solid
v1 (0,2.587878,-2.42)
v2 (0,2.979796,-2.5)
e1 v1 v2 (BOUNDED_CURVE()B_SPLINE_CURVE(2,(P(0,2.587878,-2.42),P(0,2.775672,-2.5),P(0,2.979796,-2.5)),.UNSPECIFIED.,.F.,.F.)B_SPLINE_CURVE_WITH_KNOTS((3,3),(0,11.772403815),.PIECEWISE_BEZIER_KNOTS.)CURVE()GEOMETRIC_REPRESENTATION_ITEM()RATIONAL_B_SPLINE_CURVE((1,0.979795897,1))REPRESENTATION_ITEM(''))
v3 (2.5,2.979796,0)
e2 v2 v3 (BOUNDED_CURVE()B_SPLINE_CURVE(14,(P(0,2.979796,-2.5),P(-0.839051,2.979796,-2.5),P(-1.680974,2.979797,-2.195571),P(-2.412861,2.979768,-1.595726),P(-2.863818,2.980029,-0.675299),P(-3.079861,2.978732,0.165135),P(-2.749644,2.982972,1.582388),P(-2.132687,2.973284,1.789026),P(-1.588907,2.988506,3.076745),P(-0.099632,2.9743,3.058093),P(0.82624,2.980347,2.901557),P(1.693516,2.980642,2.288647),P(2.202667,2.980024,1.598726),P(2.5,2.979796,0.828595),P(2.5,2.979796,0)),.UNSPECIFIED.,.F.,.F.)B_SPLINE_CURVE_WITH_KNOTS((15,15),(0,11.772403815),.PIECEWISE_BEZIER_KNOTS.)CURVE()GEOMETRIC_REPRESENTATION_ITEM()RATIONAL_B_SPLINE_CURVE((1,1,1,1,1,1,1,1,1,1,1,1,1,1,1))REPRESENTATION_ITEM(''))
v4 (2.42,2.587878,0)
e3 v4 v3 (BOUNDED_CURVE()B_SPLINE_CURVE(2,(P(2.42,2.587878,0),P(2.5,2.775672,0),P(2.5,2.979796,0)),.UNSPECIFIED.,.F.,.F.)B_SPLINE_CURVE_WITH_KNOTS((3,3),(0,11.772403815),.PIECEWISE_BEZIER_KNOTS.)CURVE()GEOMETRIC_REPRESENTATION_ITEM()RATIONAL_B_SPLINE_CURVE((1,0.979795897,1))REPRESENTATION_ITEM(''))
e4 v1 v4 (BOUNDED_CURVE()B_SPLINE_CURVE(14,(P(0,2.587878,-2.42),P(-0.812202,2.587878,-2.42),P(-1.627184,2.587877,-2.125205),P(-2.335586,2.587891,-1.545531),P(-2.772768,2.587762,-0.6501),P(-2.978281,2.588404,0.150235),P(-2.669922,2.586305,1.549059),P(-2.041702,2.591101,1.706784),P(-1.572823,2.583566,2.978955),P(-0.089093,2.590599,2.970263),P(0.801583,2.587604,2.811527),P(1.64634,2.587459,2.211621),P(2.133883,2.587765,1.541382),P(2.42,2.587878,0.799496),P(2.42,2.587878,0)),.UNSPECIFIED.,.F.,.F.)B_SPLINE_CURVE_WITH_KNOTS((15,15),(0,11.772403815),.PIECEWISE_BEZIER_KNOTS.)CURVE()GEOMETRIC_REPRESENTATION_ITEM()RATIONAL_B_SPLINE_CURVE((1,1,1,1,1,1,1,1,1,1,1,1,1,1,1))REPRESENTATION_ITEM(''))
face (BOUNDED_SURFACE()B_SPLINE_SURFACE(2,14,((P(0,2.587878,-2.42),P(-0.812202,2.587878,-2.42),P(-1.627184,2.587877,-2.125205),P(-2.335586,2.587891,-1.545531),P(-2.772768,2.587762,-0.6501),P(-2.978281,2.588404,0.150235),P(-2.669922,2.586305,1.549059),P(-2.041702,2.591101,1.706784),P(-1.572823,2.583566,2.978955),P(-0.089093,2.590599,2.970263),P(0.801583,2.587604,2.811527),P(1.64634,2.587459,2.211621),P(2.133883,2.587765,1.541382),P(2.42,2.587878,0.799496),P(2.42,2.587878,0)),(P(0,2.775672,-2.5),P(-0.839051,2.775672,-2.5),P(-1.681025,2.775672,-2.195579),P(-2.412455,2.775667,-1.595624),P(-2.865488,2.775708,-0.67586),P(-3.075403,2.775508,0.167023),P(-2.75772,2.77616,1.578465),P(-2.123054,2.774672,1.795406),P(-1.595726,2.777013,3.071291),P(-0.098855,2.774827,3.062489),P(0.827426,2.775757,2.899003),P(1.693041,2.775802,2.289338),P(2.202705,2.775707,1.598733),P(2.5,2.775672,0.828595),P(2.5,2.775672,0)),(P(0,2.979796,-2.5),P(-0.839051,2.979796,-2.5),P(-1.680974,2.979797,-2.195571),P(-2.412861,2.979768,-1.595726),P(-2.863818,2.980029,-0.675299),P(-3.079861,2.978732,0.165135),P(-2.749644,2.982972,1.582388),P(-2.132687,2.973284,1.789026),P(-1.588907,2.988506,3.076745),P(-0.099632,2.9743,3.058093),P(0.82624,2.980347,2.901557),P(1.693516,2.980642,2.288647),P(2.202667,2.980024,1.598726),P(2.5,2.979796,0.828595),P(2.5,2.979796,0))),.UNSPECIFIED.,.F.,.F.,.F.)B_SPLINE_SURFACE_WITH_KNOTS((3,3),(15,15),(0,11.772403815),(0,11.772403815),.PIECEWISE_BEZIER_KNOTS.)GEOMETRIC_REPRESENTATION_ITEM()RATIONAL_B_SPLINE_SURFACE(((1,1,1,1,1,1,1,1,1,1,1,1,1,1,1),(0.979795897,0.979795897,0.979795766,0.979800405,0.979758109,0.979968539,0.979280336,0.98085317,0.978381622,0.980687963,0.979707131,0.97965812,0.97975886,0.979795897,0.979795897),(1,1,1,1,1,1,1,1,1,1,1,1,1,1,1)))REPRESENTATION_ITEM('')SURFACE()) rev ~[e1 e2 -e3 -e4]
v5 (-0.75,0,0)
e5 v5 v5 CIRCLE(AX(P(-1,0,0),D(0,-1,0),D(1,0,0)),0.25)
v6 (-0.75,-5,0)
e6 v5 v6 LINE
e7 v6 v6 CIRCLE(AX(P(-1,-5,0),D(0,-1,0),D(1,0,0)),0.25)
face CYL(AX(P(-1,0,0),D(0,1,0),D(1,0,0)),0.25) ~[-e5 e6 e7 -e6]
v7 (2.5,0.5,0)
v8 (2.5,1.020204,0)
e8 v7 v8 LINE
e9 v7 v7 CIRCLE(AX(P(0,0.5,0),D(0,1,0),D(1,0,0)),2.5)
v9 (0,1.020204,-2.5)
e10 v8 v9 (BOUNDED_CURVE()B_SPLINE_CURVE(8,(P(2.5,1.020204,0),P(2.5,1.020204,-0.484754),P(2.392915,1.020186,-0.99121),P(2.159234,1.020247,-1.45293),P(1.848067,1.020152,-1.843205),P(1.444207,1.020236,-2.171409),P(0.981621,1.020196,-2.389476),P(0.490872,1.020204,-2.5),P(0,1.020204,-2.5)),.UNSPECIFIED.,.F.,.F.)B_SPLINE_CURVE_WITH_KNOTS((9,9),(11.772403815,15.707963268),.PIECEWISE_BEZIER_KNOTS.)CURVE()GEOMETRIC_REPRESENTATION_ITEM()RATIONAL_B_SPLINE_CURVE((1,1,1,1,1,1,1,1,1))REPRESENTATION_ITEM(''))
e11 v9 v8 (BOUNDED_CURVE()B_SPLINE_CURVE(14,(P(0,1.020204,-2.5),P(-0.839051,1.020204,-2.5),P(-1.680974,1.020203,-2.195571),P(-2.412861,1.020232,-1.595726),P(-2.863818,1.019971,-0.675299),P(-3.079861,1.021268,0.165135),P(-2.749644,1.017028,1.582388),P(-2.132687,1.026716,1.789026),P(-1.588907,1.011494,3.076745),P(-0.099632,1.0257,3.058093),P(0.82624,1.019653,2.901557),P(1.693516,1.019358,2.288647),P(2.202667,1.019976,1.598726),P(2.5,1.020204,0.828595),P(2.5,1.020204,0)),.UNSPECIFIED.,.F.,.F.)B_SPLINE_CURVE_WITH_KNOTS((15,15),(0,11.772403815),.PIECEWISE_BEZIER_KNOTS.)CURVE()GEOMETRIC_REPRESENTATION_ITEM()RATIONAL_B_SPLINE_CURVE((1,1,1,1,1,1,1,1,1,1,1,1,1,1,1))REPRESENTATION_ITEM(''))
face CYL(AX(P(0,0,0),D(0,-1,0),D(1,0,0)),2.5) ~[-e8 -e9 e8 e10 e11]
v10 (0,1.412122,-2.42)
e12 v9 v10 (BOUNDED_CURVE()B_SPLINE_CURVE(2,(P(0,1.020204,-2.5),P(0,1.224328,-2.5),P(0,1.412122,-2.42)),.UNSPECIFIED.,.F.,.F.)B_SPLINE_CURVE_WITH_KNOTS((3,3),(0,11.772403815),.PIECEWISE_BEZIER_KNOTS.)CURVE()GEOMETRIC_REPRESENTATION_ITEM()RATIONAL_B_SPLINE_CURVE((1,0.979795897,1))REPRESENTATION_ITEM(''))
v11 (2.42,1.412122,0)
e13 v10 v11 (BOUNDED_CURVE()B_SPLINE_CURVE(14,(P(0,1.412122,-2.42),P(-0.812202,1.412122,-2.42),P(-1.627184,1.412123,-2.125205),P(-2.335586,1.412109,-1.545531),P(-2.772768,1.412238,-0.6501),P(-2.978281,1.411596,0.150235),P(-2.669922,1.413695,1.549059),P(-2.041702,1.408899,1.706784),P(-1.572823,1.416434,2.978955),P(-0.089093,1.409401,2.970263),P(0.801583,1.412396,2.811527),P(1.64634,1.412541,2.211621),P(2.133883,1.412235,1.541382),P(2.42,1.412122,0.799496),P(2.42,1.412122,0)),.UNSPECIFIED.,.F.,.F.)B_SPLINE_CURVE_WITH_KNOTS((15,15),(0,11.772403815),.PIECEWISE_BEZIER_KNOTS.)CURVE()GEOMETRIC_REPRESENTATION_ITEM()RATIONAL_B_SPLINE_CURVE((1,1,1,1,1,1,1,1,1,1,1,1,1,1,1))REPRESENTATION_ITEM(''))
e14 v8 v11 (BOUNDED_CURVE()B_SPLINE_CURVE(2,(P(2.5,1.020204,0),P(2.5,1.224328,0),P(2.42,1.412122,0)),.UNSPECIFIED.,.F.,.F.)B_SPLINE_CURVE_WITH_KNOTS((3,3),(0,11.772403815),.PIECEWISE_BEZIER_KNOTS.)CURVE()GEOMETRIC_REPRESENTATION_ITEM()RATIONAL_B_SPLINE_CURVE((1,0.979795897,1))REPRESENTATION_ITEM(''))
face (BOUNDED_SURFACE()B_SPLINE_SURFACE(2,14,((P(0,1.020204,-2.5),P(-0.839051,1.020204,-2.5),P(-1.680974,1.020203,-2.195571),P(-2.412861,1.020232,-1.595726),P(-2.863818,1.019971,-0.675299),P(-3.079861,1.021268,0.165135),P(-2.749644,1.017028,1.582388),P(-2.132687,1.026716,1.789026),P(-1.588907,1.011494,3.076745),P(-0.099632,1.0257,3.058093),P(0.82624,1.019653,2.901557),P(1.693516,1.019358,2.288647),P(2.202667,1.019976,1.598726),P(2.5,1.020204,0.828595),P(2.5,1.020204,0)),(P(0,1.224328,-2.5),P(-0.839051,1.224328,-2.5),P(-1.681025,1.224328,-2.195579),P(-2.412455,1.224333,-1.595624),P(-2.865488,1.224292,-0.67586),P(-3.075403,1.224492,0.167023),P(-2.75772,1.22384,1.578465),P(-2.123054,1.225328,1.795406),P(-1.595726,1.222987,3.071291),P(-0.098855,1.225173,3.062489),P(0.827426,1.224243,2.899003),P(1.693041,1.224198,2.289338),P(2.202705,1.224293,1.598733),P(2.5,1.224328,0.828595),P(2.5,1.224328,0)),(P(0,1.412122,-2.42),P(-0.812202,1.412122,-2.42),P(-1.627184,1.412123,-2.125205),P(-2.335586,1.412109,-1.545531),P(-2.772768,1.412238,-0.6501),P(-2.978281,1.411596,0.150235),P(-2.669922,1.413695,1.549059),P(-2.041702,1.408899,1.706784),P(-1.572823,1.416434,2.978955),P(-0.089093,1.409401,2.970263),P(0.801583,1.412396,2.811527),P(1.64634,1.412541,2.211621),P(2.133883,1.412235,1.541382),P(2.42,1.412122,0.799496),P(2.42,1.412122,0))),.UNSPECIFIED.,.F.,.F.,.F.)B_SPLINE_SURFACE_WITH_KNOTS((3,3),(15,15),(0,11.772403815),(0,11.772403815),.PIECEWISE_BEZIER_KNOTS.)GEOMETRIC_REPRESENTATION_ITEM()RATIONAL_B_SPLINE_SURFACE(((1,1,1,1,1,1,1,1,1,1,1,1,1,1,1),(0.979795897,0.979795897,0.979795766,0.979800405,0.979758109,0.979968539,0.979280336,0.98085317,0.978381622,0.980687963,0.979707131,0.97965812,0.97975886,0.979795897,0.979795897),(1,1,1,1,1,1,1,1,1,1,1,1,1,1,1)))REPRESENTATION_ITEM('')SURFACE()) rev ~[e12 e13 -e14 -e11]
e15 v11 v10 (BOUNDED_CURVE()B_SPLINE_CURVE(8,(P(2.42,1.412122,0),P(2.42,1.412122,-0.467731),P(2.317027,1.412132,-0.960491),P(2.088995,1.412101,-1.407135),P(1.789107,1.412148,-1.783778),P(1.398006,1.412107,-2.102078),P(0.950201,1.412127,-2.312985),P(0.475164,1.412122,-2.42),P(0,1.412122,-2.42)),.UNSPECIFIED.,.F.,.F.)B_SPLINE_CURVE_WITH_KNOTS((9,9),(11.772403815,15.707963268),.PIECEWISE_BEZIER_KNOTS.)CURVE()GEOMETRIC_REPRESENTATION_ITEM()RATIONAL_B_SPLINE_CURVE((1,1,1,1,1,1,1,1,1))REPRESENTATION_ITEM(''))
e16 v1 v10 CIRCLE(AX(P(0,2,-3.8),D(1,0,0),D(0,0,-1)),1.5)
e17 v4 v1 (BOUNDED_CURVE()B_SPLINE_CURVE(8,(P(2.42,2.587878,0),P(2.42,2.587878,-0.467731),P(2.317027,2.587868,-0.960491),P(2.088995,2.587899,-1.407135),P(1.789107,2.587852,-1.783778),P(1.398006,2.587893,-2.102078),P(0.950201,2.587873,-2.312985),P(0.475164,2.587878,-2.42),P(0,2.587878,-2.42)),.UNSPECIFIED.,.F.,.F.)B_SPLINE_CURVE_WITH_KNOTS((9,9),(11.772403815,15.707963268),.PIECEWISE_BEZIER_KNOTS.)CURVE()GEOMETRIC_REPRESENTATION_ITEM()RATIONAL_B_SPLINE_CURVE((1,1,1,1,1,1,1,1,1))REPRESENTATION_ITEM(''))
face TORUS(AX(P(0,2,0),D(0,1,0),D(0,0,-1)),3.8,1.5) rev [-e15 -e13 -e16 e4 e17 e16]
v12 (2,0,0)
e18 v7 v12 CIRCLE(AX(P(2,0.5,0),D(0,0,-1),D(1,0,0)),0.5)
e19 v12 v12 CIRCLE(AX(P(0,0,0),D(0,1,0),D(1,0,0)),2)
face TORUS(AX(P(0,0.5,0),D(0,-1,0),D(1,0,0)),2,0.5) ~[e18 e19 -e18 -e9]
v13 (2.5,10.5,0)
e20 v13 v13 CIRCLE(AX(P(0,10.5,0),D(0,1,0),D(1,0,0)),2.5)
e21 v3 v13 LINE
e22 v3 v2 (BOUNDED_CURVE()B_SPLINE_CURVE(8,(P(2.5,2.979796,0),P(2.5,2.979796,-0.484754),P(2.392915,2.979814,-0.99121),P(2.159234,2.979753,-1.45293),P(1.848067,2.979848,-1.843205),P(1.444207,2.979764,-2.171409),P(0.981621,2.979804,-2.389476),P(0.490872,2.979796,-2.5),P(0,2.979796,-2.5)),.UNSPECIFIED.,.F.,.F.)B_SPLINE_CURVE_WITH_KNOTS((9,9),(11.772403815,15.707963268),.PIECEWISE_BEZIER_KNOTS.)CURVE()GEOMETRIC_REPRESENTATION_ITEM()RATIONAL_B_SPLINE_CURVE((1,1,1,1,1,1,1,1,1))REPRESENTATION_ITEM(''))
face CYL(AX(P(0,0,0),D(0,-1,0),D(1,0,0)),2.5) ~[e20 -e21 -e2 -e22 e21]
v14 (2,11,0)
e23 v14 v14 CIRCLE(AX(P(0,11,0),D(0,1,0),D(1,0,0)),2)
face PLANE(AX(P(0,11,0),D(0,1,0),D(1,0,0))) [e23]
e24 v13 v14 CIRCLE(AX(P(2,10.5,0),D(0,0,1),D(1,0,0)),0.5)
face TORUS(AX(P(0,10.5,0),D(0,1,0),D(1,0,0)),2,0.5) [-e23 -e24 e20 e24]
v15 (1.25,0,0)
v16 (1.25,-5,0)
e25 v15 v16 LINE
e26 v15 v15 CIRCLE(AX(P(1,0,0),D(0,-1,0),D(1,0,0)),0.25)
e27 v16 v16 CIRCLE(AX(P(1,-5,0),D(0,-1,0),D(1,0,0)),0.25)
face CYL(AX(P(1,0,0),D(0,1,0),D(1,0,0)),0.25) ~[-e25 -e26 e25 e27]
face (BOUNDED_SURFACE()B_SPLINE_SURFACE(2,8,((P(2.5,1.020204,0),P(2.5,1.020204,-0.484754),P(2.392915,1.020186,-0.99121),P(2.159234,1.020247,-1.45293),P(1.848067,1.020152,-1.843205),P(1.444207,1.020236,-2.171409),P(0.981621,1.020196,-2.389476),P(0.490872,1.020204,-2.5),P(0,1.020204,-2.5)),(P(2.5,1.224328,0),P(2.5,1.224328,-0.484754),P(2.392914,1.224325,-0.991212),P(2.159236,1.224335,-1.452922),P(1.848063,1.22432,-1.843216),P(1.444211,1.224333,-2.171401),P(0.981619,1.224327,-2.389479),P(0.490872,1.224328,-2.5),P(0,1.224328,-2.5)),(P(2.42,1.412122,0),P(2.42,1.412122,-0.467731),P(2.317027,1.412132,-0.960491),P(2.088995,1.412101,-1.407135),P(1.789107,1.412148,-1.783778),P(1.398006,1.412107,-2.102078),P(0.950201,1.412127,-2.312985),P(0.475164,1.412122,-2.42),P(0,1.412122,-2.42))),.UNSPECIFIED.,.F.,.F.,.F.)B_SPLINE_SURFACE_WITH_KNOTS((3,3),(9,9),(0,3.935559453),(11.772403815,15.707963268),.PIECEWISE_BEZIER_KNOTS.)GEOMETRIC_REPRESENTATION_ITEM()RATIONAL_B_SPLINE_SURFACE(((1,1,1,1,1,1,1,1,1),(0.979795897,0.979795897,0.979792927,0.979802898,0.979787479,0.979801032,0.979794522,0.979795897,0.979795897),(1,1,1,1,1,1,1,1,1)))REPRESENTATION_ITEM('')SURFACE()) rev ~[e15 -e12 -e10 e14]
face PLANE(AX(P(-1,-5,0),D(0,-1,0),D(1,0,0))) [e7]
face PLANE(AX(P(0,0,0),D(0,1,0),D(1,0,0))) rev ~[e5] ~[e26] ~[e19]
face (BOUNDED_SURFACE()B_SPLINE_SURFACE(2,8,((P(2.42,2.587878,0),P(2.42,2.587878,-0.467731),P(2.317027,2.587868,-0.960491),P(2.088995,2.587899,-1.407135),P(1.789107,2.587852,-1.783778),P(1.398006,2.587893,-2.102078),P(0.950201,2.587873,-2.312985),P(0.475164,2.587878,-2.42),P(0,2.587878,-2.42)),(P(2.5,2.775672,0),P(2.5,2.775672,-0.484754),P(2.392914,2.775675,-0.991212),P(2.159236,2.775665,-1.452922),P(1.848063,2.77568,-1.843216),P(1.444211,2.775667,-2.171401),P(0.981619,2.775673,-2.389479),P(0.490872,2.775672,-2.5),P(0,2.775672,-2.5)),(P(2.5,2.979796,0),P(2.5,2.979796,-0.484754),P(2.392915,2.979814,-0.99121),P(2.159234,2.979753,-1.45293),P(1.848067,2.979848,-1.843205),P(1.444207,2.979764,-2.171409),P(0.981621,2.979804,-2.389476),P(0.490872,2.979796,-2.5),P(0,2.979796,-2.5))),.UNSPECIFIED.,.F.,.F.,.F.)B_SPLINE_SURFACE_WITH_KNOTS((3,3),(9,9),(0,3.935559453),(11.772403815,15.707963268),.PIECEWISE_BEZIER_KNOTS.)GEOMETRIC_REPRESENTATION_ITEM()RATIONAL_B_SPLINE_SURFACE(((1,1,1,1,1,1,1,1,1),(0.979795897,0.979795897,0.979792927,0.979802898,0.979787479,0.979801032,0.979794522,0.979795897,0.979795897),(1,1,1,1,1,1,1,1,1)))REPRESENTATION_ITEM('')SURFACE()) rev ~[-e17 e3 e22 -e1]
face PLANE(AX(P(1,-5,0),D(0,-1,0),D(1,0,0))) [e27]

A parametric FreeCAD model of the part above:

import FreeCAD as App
import Part
import Sketcher
from FreeCAD import Vector
Q = App.Units.Quantity


def edges_at(feature, points):
    """Names of the edges that pass closest to the given points."""
    edges = feature.Shape.Edges
    near = lambda p: min(range(len(edges)), key=lambda i: edges[i].distToShape(Part.Vertex(*p))[0])
    return sorted({f"Edge{near(p) + 1}" for p in points})

doc = App.newDocument("Part")
params = doc.addObject("Spreadsheet::Sheet", "Params")
for row, (alias, value) in enumerate([
    ("sketch1_diameter", "5 mm"),
    ("pad1_length", "11 mm"),
    ("sketch2_diameter", "0.5 mm"),
    ("pad2_length", "5 mm"),
    ("sketch3_diameter", "3 mm"),
    ("groove_angle", "360 deg"),
    ("fillet_radius", "1 mm"),
    ("fillet2_radius", "0.5 mm"),
    ("fillet3_radius", "0.5 mm"),
], start=1):
    params.set(f"A{row}", alias)
    params.set(f"B{row}", "=" + value)
    params.setAlias(f"B{row}", alias)

body = doc.addObject("PartDesign::Body", "Body")

sketch1 = body.newObject("Sketcher::SketchObject", "Sketch")
sketch1.AttachmentSupport = (doc.getObject("XZ_Plane"), [""])
sketch1.MapMode = "FlatFace"
sketch1.addGeometry(Part.Circle(Vector(0, 0, 0), Vector(0, 0, 1), 2.5), False)
sketch1.addConstraint([
    Sketcher.Constraint("Coincident", 0, 3, -1, 1),
    Sketcher.Constraint("Diameter", 0, Q("5 mm")),
])
sketch1.setExpression("Constraints[1]", "Params.sketch1_diameter")
pad1 = body.newObject("PartDesign::Pad", "Pad")
pad1.Profile = sketch1
pad1.setExpression("Length", "Params.pad1_length")
pad1.Reversed = True

sketch2 = body.newObject("Sketcher::SketchObject", "Sketch001")
sketch2.AttachmentSupport = (doc.getObject("XZ_Plane"), [""])
sketch2.MapMode = "FlatFace"
sketch2.addGeometry([
    Part.Circle(Vector(1, 0, 0), Vector(0, 0, 1), 0.25),
    Part.Circle(Vector(-1, 0, 0), Vector(0, 0, 1), 0.25),
], False)
sketch2.addConstraint([
    Sketcher.Constraint("Equal", 0, 1),
    Sketcher.Constraint("Symmetric", 0, 3, 1, 3, -1, 1),
    Sketcher.Constraint("PointOnObject", 0, 3, -1),
    Sketcher.Constraint("Diameter", 0, Q("0.5 mm")),
    Sketcher.Constraint("DistanceX", -1, 1, 0, 3, Q("1 mm")),
])
sketch2.setExpression("Constraints[3]", "Params.sketch2_diameter")
pad2 = body.newObject("PartDesign::Pad", "Pad001")
pad2.Profile = sketch2
pad2.setExpression("Length", "Params.pad2_length")

sketch3 = body.newObject("Sketcher::SketchObject", "Sketch002")
sketch3.AttachmentSupport = (doc.getObject("YZ_Plane"), [""])
sketch3.MapMode = "FlatFace"
sketch3.addGeometry(Part.Circle(Vector(2, -3.8, 0), Vector(0, 0, 1), 1.5), False)
sketch3.addConstraint([
    Sketcher.Constraint("Diameter", 0, Q("3 mm")),
    Sketcher.Constraint("DistanceX", -1, 1, 0, 3, Q("2 mm")),
    Sketcher.Constraint("DistanceY", 0, 3, -1, 1, Q("3.8 mm")),
])
sketch3.setExpression("Constraints[0]", "Params.sketch3_diameter")
groove = body.newObject("PartDesign::Groove", "Groove")
groove.Profile = sketch3
groove.ReferenceAxis = (sketch3, ["H_Axis"])
groove.setExpression("Angle", "Params.groove_angle")
doc.recompute()

fillet = body.newObject("PartDesign::Fillet", "Fillet")
fillet.Base = (groove, edges_at(groove, [(-1.768, 2.748, 1.768), (-1.768, 1.252, 1.768)]))
fillet.setExpression("Radius", "Params.fillet_radius")
doc.recompute()

fillet2 = body.newObject("PartDesign::Fillet", "Fillet001")
fillet2.Base = (fillet, edges_at(fillet, [(-2.5, 11, 0)]))
fillet2.setExpression("Radius", "Params.fillet2_radius")
doc.recompute()

fillet3 = body.newObject("PartDesign::Fillet", "Fillet002")
fillet3.Base = (fillet2, edges_at(fillet2, [(-2.5, 0, 0)]))
fillet3.setExpression("Radius", "Params.fillet3_radius")

doc.recompute()
